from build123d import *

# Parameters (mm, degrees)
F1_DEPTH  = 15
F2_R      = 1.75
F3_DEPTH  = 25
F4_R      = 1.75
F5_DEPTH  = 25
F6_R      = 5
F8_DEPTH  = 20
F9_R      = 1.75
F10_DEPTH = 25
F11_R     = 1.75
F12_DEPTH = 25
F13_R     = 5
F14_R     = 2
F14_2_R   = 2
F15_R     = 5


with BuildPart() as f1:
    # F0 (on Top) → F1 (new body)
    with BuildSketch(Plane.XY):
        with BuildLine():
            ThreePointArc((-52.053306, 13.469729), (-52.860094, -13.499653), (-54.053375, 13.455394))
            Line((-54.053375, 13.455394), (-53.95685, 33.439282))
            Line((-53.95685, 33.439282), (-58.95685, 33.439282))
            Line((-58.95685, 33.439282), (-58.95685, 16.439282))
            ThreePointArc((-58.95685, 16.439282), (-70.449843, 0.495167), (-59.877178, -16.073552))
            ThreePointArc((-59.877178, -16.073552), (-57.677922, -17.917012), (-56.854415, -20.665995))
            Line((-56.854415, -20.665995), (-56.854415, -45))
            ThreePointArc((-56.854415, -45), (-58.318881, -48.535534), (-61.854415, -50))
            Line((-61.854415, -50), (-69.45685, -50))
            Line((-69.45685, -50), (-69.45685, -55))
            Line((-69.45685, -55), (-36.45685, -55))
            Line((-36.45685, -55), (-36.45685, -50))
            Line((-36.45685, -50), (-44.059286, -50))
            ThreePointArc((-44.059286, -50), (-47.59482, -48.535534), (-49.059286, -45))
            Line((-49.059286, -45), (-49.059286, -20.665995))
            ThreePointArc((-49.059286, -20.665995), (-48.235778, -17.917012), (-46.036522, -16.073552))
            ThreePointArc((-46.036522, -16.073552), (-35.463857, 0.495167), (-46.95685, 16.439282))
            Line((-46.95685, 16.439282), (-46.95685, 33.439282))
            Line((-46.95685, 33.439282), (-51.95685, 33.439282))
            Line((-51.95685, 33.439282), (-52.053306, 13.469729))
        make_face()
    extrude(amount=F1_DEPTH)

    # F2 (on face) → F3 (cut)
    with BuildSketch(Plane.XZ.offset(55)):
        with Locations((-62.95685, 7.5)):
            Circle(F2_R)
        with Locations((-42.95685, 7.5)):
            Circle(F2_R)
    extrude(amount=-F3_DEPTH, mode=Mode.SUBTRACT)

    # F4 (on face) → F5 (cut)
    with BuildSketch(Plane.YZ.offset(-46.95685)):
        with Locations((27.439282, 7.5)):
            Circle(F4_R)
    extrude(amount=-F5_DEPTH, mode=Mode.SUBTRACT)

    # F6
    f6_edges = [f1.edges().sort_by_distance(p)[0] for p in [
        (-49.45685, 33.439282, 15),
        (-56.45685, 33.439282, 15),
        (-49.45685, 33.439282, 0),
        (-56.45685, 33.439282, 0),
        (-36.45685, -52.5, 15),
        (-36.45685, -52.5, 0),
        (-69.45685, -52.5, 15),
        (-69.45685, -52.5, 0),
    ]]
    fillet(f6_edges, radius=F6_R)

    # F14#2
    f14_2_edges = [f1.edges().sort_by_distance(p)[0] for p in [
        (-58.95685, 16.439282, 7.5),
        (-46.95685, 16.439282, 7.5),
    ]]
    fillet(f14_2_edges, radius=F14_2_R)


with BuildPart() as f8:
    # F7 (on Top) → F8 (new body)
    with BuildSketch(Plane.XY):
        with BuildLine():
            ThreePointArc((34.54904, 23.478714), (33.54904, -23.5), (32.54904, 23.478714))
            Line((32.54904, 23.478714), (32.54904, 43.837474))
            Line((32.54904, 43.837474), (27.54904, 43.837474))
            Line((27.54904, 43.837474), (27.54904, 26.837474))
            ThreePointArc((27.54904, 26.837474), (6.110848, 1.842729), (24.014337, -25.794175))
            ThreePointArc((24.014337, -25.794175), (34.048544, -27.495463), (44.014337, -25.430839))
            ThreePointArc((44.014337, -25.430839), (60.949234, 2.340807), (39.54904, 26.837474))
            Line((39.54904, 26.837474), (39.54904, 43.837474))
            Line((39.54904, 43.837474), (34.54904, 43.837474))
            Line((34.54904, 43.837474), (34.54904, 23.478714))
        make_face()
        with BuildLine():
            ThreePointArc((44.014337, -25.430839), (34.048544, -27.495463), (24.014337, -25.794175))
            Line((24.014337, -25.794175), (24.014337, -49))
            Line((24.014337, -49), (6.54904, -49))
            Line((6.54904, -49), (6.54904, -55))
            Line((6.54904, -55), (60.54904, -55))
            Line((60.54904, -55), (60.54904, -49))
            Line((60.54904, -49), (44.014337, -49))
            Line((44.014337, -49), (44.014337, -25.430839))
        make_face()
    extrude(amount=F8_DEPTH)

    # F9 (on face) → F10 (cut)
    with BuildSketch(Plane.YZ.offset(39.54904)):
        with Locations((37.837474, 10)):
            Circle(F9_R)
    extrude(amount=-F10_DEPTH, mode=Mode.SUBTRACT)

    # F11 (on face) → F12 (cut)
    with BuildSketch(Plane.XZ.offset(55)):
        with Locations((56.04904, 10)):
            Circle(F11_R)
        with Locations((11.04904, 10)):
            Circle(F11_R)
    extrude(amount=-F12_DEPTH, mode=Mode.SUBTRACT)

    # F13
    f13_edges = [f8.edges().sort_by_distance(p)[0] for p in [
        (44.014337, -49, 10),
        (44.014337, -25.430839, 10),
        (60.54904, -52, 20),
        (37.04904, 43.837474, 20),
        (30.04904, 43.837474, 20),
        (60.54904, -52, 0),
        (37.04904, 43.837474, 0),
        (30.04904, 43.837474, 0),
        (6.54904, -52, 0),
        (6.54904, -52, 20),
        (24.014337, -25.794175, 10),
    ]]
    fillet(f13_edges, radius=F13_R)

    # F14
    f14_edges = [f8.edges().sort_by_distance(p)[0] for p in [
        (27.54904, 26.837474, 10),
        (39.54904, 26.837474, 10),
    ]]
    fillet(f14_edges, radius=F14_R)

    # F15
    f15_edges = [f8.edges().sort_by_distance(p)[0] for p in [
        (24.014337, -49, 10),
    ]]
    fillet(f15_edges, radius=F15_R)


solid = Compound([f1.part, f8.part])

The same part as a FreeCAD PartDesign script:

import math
import FreeCAD as App
import Part
import Sketcher
from FreeCAD import Vector


def edges_at(feature, points):
    """Names of the edges that pass closest to the given points."""
    edges = feature.Shape.Edges
    near = lambda p: min(range(len(edges)), key=lambda i: edges[i].distToShape(Part.Vertex(*p))[0])
    return sorted({f"Edge{near(p) + 1}" for p in points})

doc = App.newDocument("Part")
params = doc.addObject("Spreadsheet::Sheet", "Params")
for row, (alias, value) in enumerate([
    ("sketch1_radius", "4.999999 mm"),
    ("sketch1_radius2", "13.5 mm"),
    ("sketch1_radius3", "17.5 mm"),
    ("sketch1_width", "5 mm"),
    ("sketch1_width2", "33 mm"),
    ("pad1_length", "15 mm"),
    ("sketch2_diameter", "3.5 mm"),
    ("pocket1_length", "25 mm"),
    ("sketch3_diameter", "3.5 mm"),
    ("pocket2_length", "25 mm"),
    ("fillet_radius", "5 mm"),
    ("fillet2_radius", "2 mm"),
    ("sketch4_radius", "23.5 mm"),
    ("sketch4_radius2", "27.5 mm"),
    ("sketch4_width", "5 mm"),
    ("sketch4_width2", "54 mm"),
    ("sketch4_height", "17 mm"),
    ("pad2_length", "20 mm"),
    ("sketch5_diameter", "3.5 mm"),
    ("pocket3_length", "25 mm"),
    ("sketch6_diameter", "3.5 mm"),
    ("pocket4_length", "25 mm"),
    ("fillet3_radius", "5 mm"),
    ("fillet4_radius", "2 mm"),
    ("fillet5_radius", "5 mm"),
], start=1):
    params.set(f"A{row}", alias)
    params.set(f"B{row}", "=" + value)
    params.setAlias(f"B{row}", alias)

body = doc.addObject("PartDesign::Body", "Body")

sketch1 = body.newObject("Sketcher::SketchObject", "Sketch")
sketch1.AttachmentSupport = (doc.getObject("XY_Plane"), [""])
sketch1.MapMode = "FlatFace"
sketch1.addGeometry([
    Part.ArcOfCircle(Part.Circle(Vector(-52.956851, 0, 0), Vector(0, 0, 1), 13.5), math.radians(94.658925), math.radians(446.162367)),
    Part.LineSegment(Vector(-54.053375, 13.455394, 0), Vector(-53.95685, 33.439282, 0)),
    Part.LineSegment(Vector(-53.95685, 33.439282, 0), Vector(-58.95685, 33.439282, 0)),
    Part.LineSegment(Vector(-58.95685, 33.439282, 0), Vector(-58.95685, 16.439282, 0)),
    Part.ArcOfCircle(Part.Circle(Vector(-52.95685, 0, 0), Vector(0, 0, 1), 17.5), math.radians(110.051044), math.radians(246.706124)),
    Part.ArcOfCircle(Part.Circle(Vector(-61.854414, -20.665994, 0), Vector(0, 0, 1), 4.999999), math.radians(-0.000006), math.radians(66.706127)),
    Part.LineSegment(Vector(-56.854415, -20.665995, 0), Vector(-56.854415, -45, 0)),
    Part.ArcOfCircle(Part.Circle(Vector(-61.854415, -45, 0), Vector(0, 0, 1), 5), math.radians(-90.000004), math.radians(0.000004)),
    Part.LineSegment(Vector(-61.854415, -50, 0), Vector(-69.45685, -50, 0)),
    Part.LineSegment(Vector(-69.45685, -50, 0), Vector(-69.45685, -55, 0)),
    Part.LineSegment(Vector(-69.45685, -55, 0), Vector(-36.45685, -55, 0)),
    Part.LineSegment(Vector(-36.45685, -55, 0), Vector(-36.45685, -50, 0)),
    Part.LineSegment(Vector(-36.45685, -50, 0), Vector(-44.059286, -50, 0)),
    Part.ArcOfCircle(Part.Circle(Vector(-44.059286, -45, 0), Vector(0, 0, 1), 5), math.radians(179.999996), math.radians(270.000004)),
    Part.LineSegment(Vector(-49.059286, -45, 0), Vector(-49.059286, -20.665995, 0)),
    Part.ArcOfCircle(Part.Circle(Vector(-44.059284, -20.665997, 0), Vector(0, 0, 1), 5.000002), math.radians(113.293883), math.radians(179.999978)),
    Part.ArcOfCircle(Part.Circle(Vector(-52.95685, 0, 0), Vector(0, 0, 1), 17.5), math.radians(-66.706124), math.radians(69.948956)),
    Part.LineSegment(Vector(-46.95685, 16.439282, 0), Vector(-46.95685, 33.439282, 0)),
    Part.LineSegment(Vector(-46.95685, 33.439282, 0), Vector(-51.95685, 33.439282, 0)),
    Part.LineSegment(Vector(-51.95685, 33.439282, 0), Vector(-52.053306, 13.469729, 0)),
], False)
sketch1.addConstraint([
    Sketcher.Constraint("Coincident", 0, 1, 1, 1),
    Sketcher.Constraint("Coincident", 1, 2, 2, 1),
    Sketcher.Constraint("Coincident", 2, 2, 3, 1),
    Sketcher.Constraint("Coincident", 3, 2, 4, 1),
    Sketcher.Constraint("Tangent", 4, 2, 5, 2),
    Sketcher.Constraint("Tangent", 5, 1, 6, 1),
    Sketcher.Constraint("Tangent", 6, 2, 7, 2),
    Sketcher.Constraint("Tangent", 7, 1, 8, 1),
    Sketcher.Constraint("Coincident", 8, 2, 9, 1),
    Sketcher.Constraint("Coincident", 9, 2, 10, 1),
    Sketcher.Constraint("Coincident", 10, 2, 11, 1),
    Sketcher.Constraint("Coincident", 11, 2, 12, 1),
    Sketcher.Constraint("Tangent", 12, 2, 13, 2),
    Sketcher.Constraint("Tangent", 13, 1, 14, 1),
    Sketcher.Constraint("Tangent", 14, 2, 15, 2),
    Sketcher.Constraint("Tangent", 15, 1, 16, 1),
    Sketcher.Constraint("Coincident", 16, 2, 17, 1),
    Sketcher.Constraint("Coincident", 17, 2, 18, 1),
    Sketcher.Constraint("Coincident", 18, 2, 19, 1),
    Sketcher.Constraint("Coincident", 19, 2, 0, 2),
    Sketcher.Constraint("Horizontal", 2),
    Sketcher.Constraint("Vertical", 3),
    Sketcher.Constraint("Vertical", 6),
    Sketcher.Constraint("Horizontal", 8),
    Sketcher.Constraint("Vertical", 9),
    Sketcher.Constraint("Horizontal", 10),
    Sketcher.Constraint("Vertical", 11),
    Sketcher.Constraint("Horizontal", 12),
    Sketcher.Constraint("Vertical", 14),
    Sketcher.Constraint("Vertical", 17),
    Sketcher.Constraint("Horizontal", 18),
    Sketcher.Constraint("Coincident", 4, 3, 0, 3),
    Sketcher.Constraint("Coincident", 16, 3, 0, 3),
    Sketcher.Constraint("Equal", 5, 7),
    Sketcher.Constraint("Equal", 7, 13),
    Sketcher.Constraint("Equal", 4, 16),
    Sketcher.Constraint("PointOnObject", 0, 3, -1),
    Sketcher.Constraint("Parallel", 1, 19),
    Sketcher.Constraint("Horizontal", 7, 3, 13, 3),
    Sketcher.Constraint("Horizontal", 15, 3, 5, 1),
    Sketcher.Constraint("Horizontal", 4, 2, 15, 1),
    Sketcher.Constraint("Horizontal", 3, 2, 16, 2),
    Sketcher.Constraint("Horizontal", 2, 2, 17, 2),
    Sketcher.Constraint("Equal", 8, 12),
    Sketcher.Constraint("Equal", 2, 18),
    Sketcher.Constraint("Equal", 18, 9),
    Sketcher.Constraint("Radius", 5, 4.999999),
    Sketcher.Constraint("Radius", 0, 13.5),
    Sketcher.Constraint("Radius", 4, 17.5),
    Sketcher.Constraint("DistanceX", 2, 2, 2, 1, 5.0),
    Sketcher.Constraint("DistanceX", 10, 1, 10, 2, 33.0),
    Sketcher.Constraint("DistanceY", 3, 2, 3, 1, 17.0),
    Sketcher.Constraint("DistanceY", 7, 3, -1, 1, 45.0),
    Sketcher.Constraint("DistanceX", 1, 2, 0, 3, 0.999999),
    Sketcher.Constraint("Distance", 1, 19.984121),
    Sketcher.Constraint("DistanceX", 8, 2, 8, 1, 7.602435),
    Sketcher.Constraint("DistanceX", 0, 3, -1, 1, 52.956851),
])
sketch1.setExpression("Constraints[46]", "Params.sketch1_radius")
sketch1.setExpression("Constraints[47]", "Params.sketch1_radius2")
sketch1.setExpression("Constraints[48]", "Params.sketch1_radius3")
sketch1.setExpression("Constraints[49]", "Params.sketch1_width")
sketch1.setExpression("Constraints[50]", "Params.sketch1_width2")
pad1 = body.newObject("PartDesign::Pad", "Pad")
pad1.Profile = sketch1
pad1.setExpression("Length", "Params.pad1_length")

sketch2 = body.newObject("Sketcher::SketchObject", "Sketch001")
sketch2.AttachmentSupport = (doc.getObject("XZ_Plane"), [""])
sketch2.MapMode = "FlatFace"
sketch2.AttachmentOffset = App.Placement(Vector(0, 0, 55), App.Rotation())
sketch2.addGeometry([
    Part.Circle(Vector(-62.95685, 7.5, 0), Vector(0, 0, 1), 1.75),
    Part.Circle(Vector(-42.95685, 7.5, 0), Vector(0, 0, 1), 1.75),
], False)
sketch2.addConstraint([
    Sketcher.Constraint("Equal", 0, 1),
    Sketcher.Constraint("Horizontal", 0, 3, 1, 3),
    Sketcher.Constraint("Diameter", 0, 3.5),
    Sketcher.Constraint("DistanceX", 0, 3, 1, 3, 20.0),
    Sketcher.Constraint("DistanceY", -1, 1, 0, 3, 7.5),
    Sketcher.Constraint("DistanceX", 0, 3, -1, 1, 62.95685),
])
sketch2.setExpression("Constraints[2]", "Params.sketch2_diameter")
pocket1 = body.newObject("PartDesign::Pocket", "Pocket")
pocket1.Profile = sketch2
pocket1.setExpression("Length", "Params.pocket1_length")

sketch3 = body.newObject("Sketcher::SketchObject", "Sketch002")
sketch3.AttachmentSupport = (doc.getObject("YZ_Plane"), [""])
sketch3.MapMode = "FlatFace"
sketch3.AttachmentOffset = App.Placement(Vector(0, 0, -46.95685), App.Rotation())
sketch3.addGeometry(Part.Circle(Vector(27.439282, 7.5, 0), Vector(0, 0, 1), 1.75), False)
sketch3.addConstraint([
    Sketcher.Constraint("Diameter", 0, 3.5),
    Sketcher.Constraint("DistanceY", -1, 1, 0, 3, 7.5),
    Sketcher.Constraint("DistanceX", -1, 1, 0, 3, 27.439282),
])
sketch3.setExpression("Constraints[0]", "Params.sketch3_diameter")
pocket2 = body.newObject("PartDesign::Pocket", "Pocket001")
pocket2.Profile = sketch3
pocket2.setExpression("Length", "Params.pocket2_length")
doc.recompute()

fillet = body.newObject("PartDesign::Fillet", "Fillet")
fillet.Base = (pocket2, edges_at(pocket2, [
    (-49.457, 33.439, 15),
    (-56.457, 33.439, 15),
    (-49.457, 33.439, 0),
    (-56.457, 33.439, 0),
    (-36.457, -52.5, 15),
    (-36.457, -52.5, 0),
    (-69.457, -52.5, 15),
    (-69.457, -52.5, 0),
]))
fillet.setExpression("Radius", "Params.fillet_radius")
doc.recompute()

fillet2 = body.newObject("PartDesign::Fillet", "Fillet001")
fillet2.Base = (fillet, edges_at(fillet, [(-58.957, 16.439, 7.5), (-46.957, 16.439, 7.5)]))
fillet2.setExpression("Radius", "Params.fillet2_radius")
body2 = doc.addObject("PartDesign::Body", "Body001")

sketch4 = body2.newObject("Sketcher::SketchObject", "Sketch003")
sketch4.AttachmentSupport = (doc.getObject("XY_Plane001"), [""])
sketch4.MapMode = "FlatFace"
sketch4.addGeometry([
    Part.ArcOfCircle(Part.Circle(Vector(33.54904, 0, 0), Vector(0, 0, 1), 23.5), math.radians(92.438855), math.radians(447.561145)),
    Part.LineSegment(Vector(32.54904, 23.478714, 0), Vector(32.54904, 43.837474, 0)),
    Part.LineSegment(Vector(32.54904, 43.837474, 0), Vector(27.54904, 43.837474, 0)),
    Part.LineSegment(Vector(27.54904, 43.837474, 0), Vector(27.54904, 26.837474, 0)),
    Part.ArcOfCircle(Part.Circle(Vector(33.54904, 0, 0), Vector(0, 0, 1), 27.5), math.radians(102.602264), math.radians(249.71339)),
    Part.LineSegment(Vector(24.014337, -25.794175, 0), Vector(24.014337, -49, 0)),
    Part.LineSegment(Vector(24.014337, -49, 0), Vector(6.54904, -49, 0)),
    Part.LineSegment(Vector(6.54904, -49, 0), Vector(6.54904, -55, 0)),
    Part.LineSegment(Vector(6.54904, -55, 0), Vector(60.54904, -55, 0)),
    Part.LineSegment(Vector(60.54904, -55, 0), Vector(60.54904, -49, 0)),
    Part.LineSegment(Vector(60.54904, -49, 0), Vector(44.014337, -49, 0)),
    Part.LineSegment(Vector(44.014337, -49, 0), Vector(44.014337, -25.430839, 0)),
    Part.ArcOfCircle(Part.Circle(Vector(33.54904, 0, 0), Vector(0, 0, 1), 27.5), math.radians(-67.631857), math.radians(77.397735)),
    Part.LineSegment(Vector(39.54904, 26.837474, 0), Vector(39.54904, 43.837474, 0)),
    Part.LineSegment(Vector(39.54904, 43.837474, 0), Vector(34.54904, 43.837474, 0)),
    Part.LineSegment(Vector(34.54904, 43.837474, 0), Vector(34.54904, 23.478714, 0)),
], False)
sketch4.addConstraint([
    Sketcher.Constraint("Coincident", 0, 1, 1, 1),
    Sketcher.Constraint("Coincident", 1, 2, 2, 1),
    Sketcher.Constraint("Coincident", 2, 2, 3, 1),
    Sketcher.Constraint("Coincident", 3, 2, 4, 1),
    Sketcher.Constraint("Coincident", 4, 2, 5, 1),
    Sketcher.Constraint("Coincident", 5, 2, 6, 1),
    Sketcher.Constraint("Coincident", 6, 2, 7, 1),
    Sketcher.Constraint("Coincident", 7, 2, 8, 1),
    Sketcher.Constraint("Coincident", 8, 2, 9, 1),
    Sketcher.Constraint("Coincident", 9, 2, 10, 1),
    Sketcher.Constraint("Coincident", 10, 2, 11, 1),
    Sketcher.Constraint("Coincident", 11, 2, 12, 1),
    Sketcher.Constraint("Coincident", 12, 2, 13, 1),
    Sketcher.Constraint("Coincident", 13, 2, 14, 1),
    Sketcher.Constraint("Coincident", 14, 2, 15, 1),
    Sketcher.Constraint("Coincident", 15, 2, 0, 2),
    Sketcher.Constraint("Vertical", 1),
    Sketcher.Constraint("Horizontal", 2),
    Sketcher.Constraint("Vertical", 3),
    Sketcher.Constraint("Vertical", 5),
    Sketcher.Constraint("Horizontal", 6),
    Sketcher.Constraint("Vertical", 7),
    Sketcher.Constraint("Horizontal", 8),
    Sketcher.Constraint("Vertical", 9),
    Sketcher.Constraint("Horizontal", 10),
    Sketcher.Constraint("Vertical", 11),
    Sketcher.Constraint("Vertical", 13),
    Sketcher.Constraint("Horizontal", 14),
    Sketcher.Constraint("Vertical", 15),
    Sketcher.Constraint("Coincident", 4, 3, 0, 3),
    Sketcher.Constraint("Coincident", 12, 3, 0, 3),
    Sketcher.Constraint("Equal", 4, 12),
    Sketcher.Constraint("PointOnObject", 0, 3, -1),
    Sketcher.Constraint("Horizontal", 6, 2, 9, 2),
    Sketcher.Constraint("Horizontal", 3, 2, 12, 2),
    Sketcher.Constraint("Horizontal", 2, 2, 13, 2),
    Sketcher.Constraint("Horizontal", 0, 1, 15, 2),
    Sketcher.Constraint("Radius", 0, 23.5),
    Sketcher.Constraint("Radius", 4, 27.5),
    Sketcher.Constraint("DistanceX", 2, 2, 2, 1, 5.0),
    Sketcher.Constraint("DistanceX", 8, 1, 8, 2, 54.0),
    Sketcher.Constraint("DistanceY", 3, 2, 3, 1, 17.0),
    Sketcher.Constraint("DistanceY", 7, 2, 7, 1, 6.0),
    Sketcher.Constraint("DistanceY", 5, 2, -1, 1, 49.0),
    Sketcher.Constraint("DistanceX", 0, 1, 0, 3, 1.0),
    Sketcher.Constraint("DistanceX", 6, 2, 4, 3, 27.0),
    Sketcher.Constraint("DistanceX", 5, 2, 10, 2, 20.0),
    Sketcher.Constraint("DistanceY", 11, 1, 11, 2, 23.569161),
    Sketcher.Constraint("DistanceX", -1, 1, 0, 3, 33.54904),
])
sketch4.setExpression("Constraints[37]", "Params.sketch4_radius")
sketch4.setExpression("Constraints[38]", "Params.sketch4_radius2")
sketch4.setExpression("Constraints[39]", "Params.sketch4_width")
sketch4.setExpression("Constraints[40]", "Params.sketch4_width2")
sketch4.setExpression("Constraints[41]", "Params.sketch4_height")
pad2 = body2.newObject("PartDesign::Pad", "Pad001")
pad2.Profile = sketch4
pad2.setExpression("Length", "Params.pad2_length")

sketch5 = body2.newObject("Sketcher::SketchObject", "Sketch004")
sketch5.AttachmentSupport = (doc.getObject("YZ_Plane001"), [""])
sketch5.MapMode = "FlatFace"
sketch5.AttachmentOffset = App.Placement(Vector(0, 0, 39.54904), App.Rotation())
sketch5.addGeometry(Part.Circle(Vector(37.837474, 10, 0), Vector(0, 0, 1), 1.75), False)
sketch5.addConstraint([
    Sketcher.Constraint("Diameter", 0, 3.5),
    Sketcher.Constraint("DistanceY", -1, 1, 0, 3, 10.0),
    Sketcher.Constraint("DistanceX", -1, 1, 0, 3, 37.837474),
])
sketch5.setExpression("Constraints[0]", "Params.sketch5_diameter")
pocket3 = body2.newObject("PartDesign::Pocket", "Pocket002")
pocket3.Profile = sketch5
pocket3.setExpression("Length", "Params.pocket3_length")

sketch6 = body2.newObject("Sketcher::SketchObject", "Sketch005")
sketch6.AttachmentSupport = (doc.getObject("XZ_Plane001"), [""])
sketch6.MapMode = "FlatFace"
sketch6.AttachmentOffset = App.Placement(Vector(0, 0, 55), App.Rotation())
sketch6.addGeometry([
    Part.Circle(Vector(56.04904, 10, 0), Vector(0, 0, 1), 1.75),
    Part.Circle(Vector(11.04904, 10, 0), Vector(0, 0, 1), 1.75),
], False)
sketch6.addConstraint([
    Sketcher.Constraint("Equal", 0, 1),
    Sketcher.Constraint("Horizontal", 0, 3, 1, 3),
    Sketcher.Constraint("Diameter", 0, 3.5),
    Sketcher.Constraint("DistanceY", -1, 1, 0, 3, 10.0),
    Sketcher.Constraint("DistanceX", 1, 3, 0, 3, 45.0),
    Sketcher.Constraint("DistanceX", -1, 1, 0, 3, 56.04904),
])
sketch6.setExpression("Constraints[2]", "Params.sketch6_diameter")
pocket4 = body2.newObject("PartDesign::Pocket", "Pocket003")
pocket4.Profile = sketch6
pocket4.setExpression("Length", "Params.pocket4_length")
doc.recompute()

fillet3 = body2.newObject("PartDesign::Fillet", "Fillet002")
fillet3.Base = (pocket4, edges_at(pocket4, [
    (44.014, -49, 10),
    (44.014, -25.431, 10),
    (60.549, -52, 20),
    (37.049, 43.837, 20),
    (30.049, 43.837, 20),
    (60.549, -52, 0),
    (37.049, 43.837, 0),
    (30.049, 43.837, 0),
    (6.549, -52, 0),
    (6.549, -52, 20),
    (24.014, -25.794, 10),
]))
fillet3.setExpression("Radius", "Params.fillet3_radius")
doc.recompute()

fillet4 = body2.newObject("PartDesign::Fillet", "Fillet003")
fillet4.Base = (fillet3, edges_at(fillet3, [(27.549, 26.837, 10), (39.549, 26.837, 10)]))
fillet4.setExpression("Radius", "Params.fillet4_radius")
doc.recompute()

fillet5 = body2.newObject("PartDesign::Fillet", "Fillet004")
fillet5.Base = (fillet4, edges_at(fillet4, [(24.014, -49, 10)]))
fillet5.setExpression("Radius", "Params.fillet5_radius")

doc.recompute()
